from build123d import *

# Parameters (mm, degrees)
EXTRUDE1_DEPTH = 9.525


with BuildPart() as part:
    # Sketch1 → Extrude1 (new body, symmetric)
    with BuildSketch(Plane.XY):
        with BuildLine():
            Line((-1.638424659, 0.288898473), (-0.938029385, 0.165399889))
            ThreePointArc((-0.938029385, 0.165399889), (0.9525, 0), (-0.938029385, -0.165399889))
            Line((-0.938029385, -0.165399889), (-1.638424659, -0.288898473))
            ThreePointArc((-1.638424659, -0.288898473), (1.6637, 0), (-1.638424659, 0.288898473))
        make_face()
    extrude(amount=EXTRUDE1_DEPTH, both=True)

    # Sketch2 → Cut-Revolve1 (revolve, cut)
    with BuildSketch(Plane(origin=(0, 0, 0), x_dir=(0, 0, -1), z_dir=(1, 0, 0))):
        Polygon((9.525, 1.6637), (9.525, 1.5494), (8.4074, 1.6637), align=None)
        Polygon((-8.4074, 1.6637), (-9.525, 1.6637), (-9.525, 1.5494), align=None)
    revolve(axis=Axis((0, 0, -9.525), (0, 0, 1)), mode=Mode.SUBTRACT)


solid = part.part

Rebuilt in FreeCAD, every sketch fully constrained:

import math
import FreeCAD as App
import Part
import Sketcher
from FreeCAD import Vector
Q = App.Units.Quantity

doc = App.newDocument("Part")
body = doc.addObject("PartDesign::Body", "Body")

# Sketch on XY plane
sketch1 = doc.addObject("Sketcher::SketchObject", "Sketch")
body.addObject(sketch1)
sketch1.AttachmentSupport = (doc.XY_Plane, [""])
sketch1.MapMode = "FlatFace"
sketch1.addGeometry([
    Part.LineSegment(Vector(-1.64, 0.29, 0), Vector(-0.94, 0.17, 0)),
    Part.ArcOfCircle(Part.Circle(Vector(0, 0, 0), Vector(0, 0, 1), 0.95), math.radians(-170), math.radians(170)),
    Part.LineSegment(Vector(-0.94, -0.17, 0), Vector(-1.64, -0.29, 0)),
    Part.ArcOfCircle(Part.Circle(Vector(0, 0, 0), Vector(0, 0, 1), 1.66), math.radians(-170), math.radians(170)),
], False)
sketch1.addConstraint([
    Sketcher.Constraint("Coincident", 0, 2, 1, 2),
    Sketcher.Constraint("Coincident", 1, 1, 2, 1),
    Sketcher.Constraint("Coincident", 2, 2, 3, 1),
    Sketcher.Constraint("Coincident", 3, 2, 0, 1),
    Sketcher.Constraint("Coincident", 1, 3, -1, 1),
    Sketcher.Constraint("Coincident", 3, 3, -1, 1),
    Sketcher.Constraint("Vertical", 0, 2, 1, 1),
    Sketcher.Constraint("Vertical", 2, 2, 3, 2),
    Sketcher.Constraint("Angle", 0, Q("-10 deg")),
    Sketcher.Constraint("Radius", 1, Q("0.0375 in")),
    Sketcher.Constraint("Radius", 3, Q("0.0655 in")),
    Sketcher.Constraint("DistanceY", -1, 1, 0, 2, Q("0.1654 mm")),
])
pad1 = doc.addObject("PartDesign::Pad", "Pad")
body.addObject(pad1)
pad1.Profile = sketch1
pad1.Length = Q("0.75 in")
pad1.Midplane = True

# Sketch on YZ plane
sketch2 = doc.addObject("Sketcher::SketchObject", "Sketch001")
body.addObject(sketch2)
sketch2.AttachmentSupport = (doc.YZ_Plane, [""])
sketch2.MapMode = "FlatFace"
sketch2.addGeometry([
    Part.LineSegment(Vector(1.55, -9.53, 0), Vector(1.66, -9.53, 0)),  # 0
    Part.LineSegment(Vector(1.66, -9.53, 0), Vector(1.66, -8.41, 0)),  # 1
    Part.LineSegment(Vector(1.66, -8.41, 0), Vector(1.55, -9.53, 0)),  # 2
    Part.LineSegment(Vector(1.66, 8.41, 0), Vector(1.66, 9.53, 0)),  # 3
    Part.LineSegment(Vector(1.66, 9.53, 0), Vector(1.55, 9.53, 0)),  # 4
    Part.LineSegment(Vector(1.55, 9.53, 0), Vector(1.66, 8.41, 0)),  # 5
], False)
sketch2.addConstraint([
    Sketcher.Constraint("Coincident", 0, 2, 1, 1),
    Sketcher.Constraint("Coincident", 1, 2, 2, 1),
    Sketcher.Constraint("Coincident", 2, 2, 0, 1),
    Sketcher.Constraint("Coincident", 3, 2, 4, 1),
    Sketcher.Constraint("Coincident", 4, 2, 5, 1),
    Sketcher.Constraint("Coincident", 5, 2, 3, 1),
    Sketcher.Constraint("Horizontal", 0),
    Sketcher.Constraint("Vertical", 1),
    Sketcher.Constraint("Vertical", 3),
    Sketcher.Constraint("Horizontal", 4),
    Sketcher.Constraint("Symmetric", 0, 2, 3, 2, -1),
    Sketcher.Constraint("Vertical", 2, 2, 4, 2),
    Sketcher.Constraint("Equal", 1, 3),
    Sketcher.Constraint("DistanceY", 1, 1, 1, 2, Q("0.044 in")),
    Sketcher.Constraint("DistanceY", 0, 2, 3, 2, Q("0.75 in")),
    Sketcher.Constraint("DistanceX", 0, 1, 0, 2, Q("0.0045 in")),
    Sketcher.Constraint("DistanceX", -1, 1, 2, 2, Q("0.061 in")),
])
groove = doc.addObject("PartDesign::Groove", "Groove")
body.addObject(groove)
groove.Profile = sketch2
groove.ReferenceAxis = (sketch2, ["V_Axis"])
groove.Angle = 360

doc.recompute()
